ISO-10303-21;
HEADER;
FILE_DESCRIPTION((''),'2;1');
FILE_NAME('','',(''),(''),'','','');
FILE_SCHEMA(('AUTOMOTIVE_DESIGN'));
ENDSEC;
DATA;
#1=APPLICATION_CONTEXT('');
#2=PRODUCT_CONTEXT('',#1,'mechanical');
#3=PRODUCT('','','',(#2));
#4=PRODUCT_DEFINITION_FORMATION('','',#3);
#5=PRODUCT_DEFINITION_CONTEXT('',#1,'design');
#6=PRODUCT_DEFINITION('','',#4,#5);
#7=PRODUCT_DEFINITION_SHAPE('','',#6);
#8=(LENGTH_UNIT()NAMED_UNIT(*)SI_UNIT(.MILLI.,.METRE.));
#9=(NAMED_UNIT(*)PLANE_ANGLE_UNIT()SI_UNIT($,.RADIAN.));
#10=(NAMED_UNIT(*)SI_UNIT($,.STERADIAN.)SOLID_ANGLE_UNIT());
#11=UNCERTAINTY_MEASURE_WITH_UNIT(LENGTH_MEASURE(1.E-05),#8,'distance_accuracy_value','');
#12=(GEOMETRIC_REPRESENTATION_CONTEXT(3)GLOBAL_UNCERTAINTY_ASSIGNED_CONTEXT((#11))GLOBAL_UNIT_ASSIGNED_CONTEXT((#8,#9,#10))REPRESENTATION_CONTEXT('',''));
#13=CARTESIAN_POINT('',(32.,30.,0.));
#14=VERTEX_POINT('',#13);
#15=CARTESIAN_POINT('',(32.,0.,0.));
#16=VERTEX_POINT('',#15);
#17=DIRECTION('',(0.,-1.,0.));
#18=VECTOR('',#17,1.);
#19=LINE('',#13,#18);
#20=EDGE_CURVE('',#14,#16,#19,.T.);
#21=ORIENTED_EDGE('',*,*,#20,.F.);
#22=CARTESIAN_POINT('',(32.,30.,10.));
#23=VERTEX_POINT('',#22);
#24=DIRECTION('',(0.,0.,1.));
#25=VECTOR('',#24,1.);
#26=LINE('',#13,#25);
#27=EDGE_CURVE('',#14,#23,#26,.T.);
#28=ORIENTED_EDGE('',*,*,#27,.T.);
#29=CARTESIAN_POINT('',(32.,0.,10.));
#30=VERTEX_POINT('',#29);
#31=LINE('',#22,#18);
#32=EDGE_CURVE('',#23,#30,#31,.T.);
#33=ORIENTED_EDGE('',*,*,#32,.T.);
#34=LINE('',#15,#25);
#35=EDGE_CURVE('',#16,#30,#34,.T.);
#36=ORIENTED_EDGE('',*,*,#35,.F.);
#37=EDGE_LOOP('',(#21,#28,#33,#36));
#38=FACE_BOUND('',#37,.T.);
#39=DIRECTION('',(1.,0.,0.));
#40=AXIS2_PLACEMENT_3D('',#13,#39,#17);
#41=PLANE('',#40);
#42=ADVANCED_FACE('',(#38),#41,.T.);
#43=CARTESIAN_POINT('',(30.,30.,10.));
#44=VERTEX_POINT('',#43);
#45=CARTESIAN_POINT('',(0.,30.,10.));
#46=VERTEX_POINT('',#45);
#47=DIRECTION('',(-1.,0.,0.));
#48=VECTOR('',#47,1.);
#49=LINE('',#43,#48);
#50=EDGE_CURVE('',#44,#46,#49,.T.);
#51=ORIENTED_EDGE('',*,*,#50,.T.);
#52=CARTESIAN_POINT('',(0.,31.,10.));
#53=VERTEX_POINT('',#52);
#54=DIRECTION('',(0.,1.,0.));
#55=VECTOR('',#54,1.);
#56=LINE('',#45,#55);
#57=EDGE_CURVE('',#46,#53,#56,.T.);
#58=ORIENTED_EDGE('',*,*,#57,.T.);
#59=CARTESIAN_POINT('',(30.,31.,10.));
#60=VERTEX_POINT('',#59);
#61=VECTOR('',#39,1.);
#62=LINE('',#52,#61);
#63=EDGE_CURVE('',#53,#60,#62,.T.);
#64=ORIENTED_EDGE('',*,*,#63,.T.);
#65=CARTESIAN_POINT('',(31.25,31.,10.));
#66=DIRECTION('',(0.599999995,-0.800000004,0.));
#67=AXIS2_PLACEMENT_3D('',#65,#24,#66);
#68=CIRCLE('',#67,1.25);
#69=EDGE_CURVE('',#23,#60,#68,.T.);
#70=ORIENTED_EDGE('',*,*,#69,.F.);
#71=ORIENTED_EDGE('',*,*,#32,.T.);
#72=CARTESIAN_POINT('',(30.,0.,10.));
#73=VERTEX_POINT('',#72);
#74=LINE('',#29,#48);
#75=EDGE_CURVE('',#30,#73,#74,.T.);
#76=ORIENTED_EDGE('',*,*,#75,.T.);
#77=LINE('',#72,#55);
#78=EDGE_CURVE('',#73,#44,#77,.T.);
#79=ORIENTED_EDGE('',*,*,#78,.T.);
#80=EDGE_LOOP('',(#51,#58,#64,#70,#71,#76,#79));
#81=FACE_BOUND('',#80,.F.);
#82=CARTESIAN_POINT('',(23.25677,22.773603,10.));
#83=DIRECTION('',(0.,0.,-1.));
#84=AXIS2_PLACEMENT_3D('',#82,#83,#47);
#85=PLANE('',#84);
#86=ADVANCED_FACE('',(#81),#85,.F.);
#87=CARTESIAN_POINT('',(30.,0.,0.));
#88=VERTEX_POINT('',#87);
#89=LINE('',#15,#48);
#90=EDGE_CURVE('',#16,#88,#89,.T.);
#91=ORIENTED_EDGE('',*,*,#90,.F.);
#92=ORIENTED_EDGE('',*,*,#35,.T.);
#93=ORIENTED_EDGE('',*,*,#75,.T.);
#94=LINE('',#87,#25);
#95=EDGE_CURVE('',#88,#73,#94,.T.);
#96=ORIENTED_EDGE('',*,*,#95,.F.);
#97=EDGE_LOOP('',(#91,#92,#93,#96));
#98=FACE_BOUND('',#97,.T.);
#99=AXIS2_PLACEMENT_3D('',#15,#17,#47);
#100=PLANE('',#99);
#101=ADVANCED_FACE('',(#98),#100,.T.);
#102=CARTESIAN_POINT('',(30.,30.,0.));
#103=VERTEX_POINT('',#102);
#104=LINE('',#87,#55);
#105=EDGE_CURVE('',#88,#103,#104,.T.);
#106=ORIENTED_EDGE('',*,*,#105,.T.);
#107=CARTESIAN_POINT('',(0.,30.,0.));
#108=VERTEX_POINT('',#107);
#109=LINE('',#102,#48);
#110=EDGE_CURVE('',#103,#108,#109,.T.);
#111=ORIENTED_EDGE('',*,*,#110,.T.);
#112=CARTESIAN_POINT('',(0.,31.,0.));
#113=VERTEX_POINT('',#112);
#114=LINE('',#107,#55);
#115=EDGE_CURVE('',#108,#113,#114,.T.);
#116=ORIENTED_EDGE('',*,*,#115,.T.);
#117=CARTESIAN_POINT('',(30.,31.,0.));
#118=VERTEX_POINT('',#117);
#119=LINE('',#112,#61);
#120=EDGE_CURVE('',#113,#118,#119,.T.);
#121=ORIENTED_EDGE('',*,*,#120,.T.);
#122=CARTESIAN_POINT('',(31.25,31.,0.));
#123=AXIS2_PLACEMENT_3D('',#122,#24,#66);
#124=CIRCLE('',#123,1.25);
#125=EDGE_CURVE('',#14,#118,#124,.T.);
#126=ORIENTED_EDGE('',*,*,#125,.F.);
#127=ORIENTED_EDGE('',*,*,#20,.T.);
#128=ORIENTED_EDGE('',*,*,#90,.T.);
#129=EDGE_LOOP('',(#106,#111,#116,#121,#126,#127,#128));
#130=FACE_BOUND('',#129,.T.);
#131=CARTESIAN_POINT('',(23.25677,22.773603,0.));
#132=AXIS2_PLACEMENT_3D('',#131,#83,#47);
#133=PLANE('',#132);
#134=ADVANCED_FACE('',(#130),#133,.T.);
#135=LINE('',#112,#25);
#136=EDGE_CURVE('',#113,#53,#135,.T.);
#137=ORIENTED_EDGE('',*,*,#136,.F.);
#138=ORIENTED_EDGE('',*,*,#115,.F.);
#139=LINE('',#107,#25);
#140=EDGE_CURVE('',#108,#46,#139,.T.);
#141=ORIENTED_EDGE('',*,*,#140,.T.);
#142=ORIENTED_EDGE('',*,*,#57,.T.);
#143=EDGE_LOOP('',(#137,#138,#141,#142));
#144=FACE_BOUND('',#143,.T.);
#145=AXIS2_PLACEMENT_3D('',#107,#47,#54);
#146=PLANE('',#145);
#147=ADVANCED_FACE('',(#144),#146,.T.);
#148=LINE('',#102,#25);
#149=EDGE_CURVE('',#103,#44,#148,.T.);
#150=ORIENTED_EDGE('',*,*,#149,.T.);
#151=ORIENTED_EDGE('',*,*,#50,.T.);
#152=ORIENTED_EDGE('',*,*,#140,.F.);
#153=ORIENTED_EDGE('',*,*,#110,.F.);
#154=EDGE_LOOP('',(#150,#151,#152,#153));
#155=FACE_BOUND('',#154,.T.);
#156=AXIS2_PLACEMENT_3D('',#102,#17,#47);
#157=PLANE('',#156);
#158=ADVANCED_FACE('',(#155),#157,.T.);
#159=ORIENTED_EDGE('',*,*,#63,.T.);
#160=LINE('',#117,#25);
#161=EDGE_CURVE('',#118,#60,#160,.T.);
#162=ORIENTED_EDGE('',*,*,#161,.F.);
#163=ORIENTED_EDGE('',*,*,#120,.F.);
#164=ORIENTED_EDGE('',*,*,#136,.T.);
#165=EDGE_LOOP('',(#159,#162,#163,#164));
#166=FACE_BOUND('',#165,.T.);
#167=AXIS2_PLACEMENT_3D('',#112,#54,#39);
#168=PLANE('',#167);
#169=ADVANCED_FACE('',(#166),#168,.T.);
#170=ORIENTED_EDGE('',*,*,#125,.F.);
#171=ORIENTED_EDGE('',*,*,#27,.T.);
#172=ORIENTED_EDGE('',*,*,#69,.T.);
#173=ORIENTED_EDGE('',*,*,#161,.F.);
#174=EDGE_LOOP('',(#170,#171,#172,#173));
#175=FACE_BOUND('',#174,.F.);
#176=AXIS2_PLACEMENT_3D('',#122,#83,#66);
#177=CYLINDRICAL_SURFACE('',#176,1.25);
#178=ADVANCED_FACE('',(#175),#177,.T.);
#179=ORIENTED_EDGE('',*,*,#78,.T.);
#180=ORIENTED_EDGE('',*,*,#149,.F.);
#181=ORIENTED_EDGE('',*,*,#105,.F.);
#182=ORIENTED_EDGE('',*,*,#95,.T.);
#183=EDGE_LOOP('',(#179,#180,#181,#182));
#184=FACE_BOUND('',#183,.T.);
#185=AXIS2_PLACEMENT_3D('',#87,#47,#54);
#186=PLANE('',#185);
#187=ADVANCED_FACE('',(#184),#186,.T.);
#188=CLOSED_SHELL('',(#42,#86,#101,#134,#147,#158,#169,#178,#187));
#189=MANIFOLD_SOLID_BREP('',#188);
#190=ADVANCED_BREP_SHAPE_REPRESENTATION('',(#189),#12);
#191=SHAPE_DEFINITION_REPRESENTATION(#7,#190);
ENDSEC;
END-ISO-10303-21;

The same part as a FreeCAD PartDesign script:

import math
import FreeCAD as App
import Part
import Sketcher
Q = App.Units.Quantity

doc = App.newDocument("Part")
params = doc.addObject("Spreadsheet::Sheet", "Params")
for row, (alias, value) in enumerate([
    ("sketch1_width", "2 mm"),
    ("sketch1_width2", "30 mm"),
    ("sketch1_height", "1 mm"),
    ("sketch1_radius", "1.25 mm"),
    ("pad1_length", "10 mm"),
], start=1):
    params.set(f"A{row}", alias)
    params.set(f"B{row}", "=" + value)
    params.setAlias(f"B{row}", alias)

body = doc.addObject("PartDesign::Body", "Body")

# Sketch on XY plane
sketch1 = body.newObject("Sketcher::SketchObject", "Sketch")
sketch1.AttachmentSupport = (doc.getObject("XY_Plane"), [""])
sketch1.MapMode = "FlatFace"
sketch1.addGeometry(Part.LineSegment(App.Vector(30, 30, 0), App.Vector(30, 0, 0)), False)
sketch1.addGeometry(Part.LineSegment(App.Vector(30, 0, 0), App.Vector(32, 0, 0)), False)
sketch1.addGeometry(Part.LineSegment(App.Vector(32, 0, 0), App.Vector(32, 30, 0)), False)
sketch1.addGeometry(Part.ArcOfCircle(Part.Circle(App.Vector(31.25, 31, 0), App.Vector(0, 0, 1), 1.25), math.radians(-53.130103), math.radians(180)), False)
sketch1.addGeometry(Part.LineSegment(App.Vector(30, 31, 0), App.Vector(0, 31, 0)), False)
sketch1.addGeometry(Part.LineSegment(App.Vector(0, 31, 0), App.Vector(0, 30, 0)), False)
sketch1.addGeometry(Part.LineSegment(App.Vector(0, 30, 0), App.Vector(30, 30, 0)), False)
sketch1.addConstraint(Sketcher.Constraint("Coincident", 0, 2, 1, 1))
sketch1.addConstraint(Sketcher.Constraint("Coincident", 1, 2, 2, 1))
sketch1.addConstraint(Sketcher.Constraint("Coincident", 2, 2, 3, 1))
sketch1.addConstraint(Sketcher.Constraint("Coincident", 3, 2, 4, 1))
sketch1.addConstraint(Sketcher.Constraint("Coincident", 4, 2, 5, 1))
sketch1.addConstraint(Sketcher.Constraint("Coincident", 5, 2, 6, 1))
sketch1.addConstraint(Sketcher.Constraint("Coincident", 6, 2, 0, 1))
sketch1.addConstraint(Sketcher.Constraint("Vertical", 0))
sketch1.addConstraint(Sketcher.Constraint("Horizontal", 1))
sketch1.addConstraint(Sketcher.Constraint("Vertical", 2))
sketch1.addConstraint(Sketcher.Constraint("Horizontal", 4))
sketch1.addConstraint(Sketcher.Constraint("Vertical", 5))
sketch1.addConstraint(Sketcher.Constraint("Horizontal", 6))
sketch1.addConstraint(Sketcher.Constraint("PointOnObject", 0, 2, -1))
sketch1.addConstraint(Sketcher.Constraint("PointOnObject", 4, 2, -2))
sketch1.addConstraint(Sketcher.Constraint("Horizontal", 2, 2, 5, 2))
sketch1.addConstraint(Sketcher.Constraint("Vertical", 0, 2, 3, 2))
sketch1.addConstraint(Sketcher.Constraint("Equal", 6, 0))
sketch1.addConstraint(Sketcher.Constraint("DistanceX", 1, 1, 1, 2, Q("2 mm")))
sketch1.addConstraint(Sketcher.Constraint("DistanceX", 4, 2, 4, 1, Q("30 mm")))
sketch1.addConstraint(Sketcher.Constraint("DistanceY", 5, 2, 5, 1, Q("1 mm")))
sketch1.addConstraint(Sketcher.Constraint("Radius", 3, Q("1.25 mm")))
sketch1.setExpression("Constraints[18]", "Params.sketch1_width")
sketch1.setExpression("Constraints[19]", "Params.sketch1_width2")
sketch1.setExpression("Constraints[20]", "Params.sketch1_height")
sketch1.setExpression("Constraints[21]", "Params.sketch1_radius")
pad1 = body.newObject("PartDesign::Pad", "Pad")
pad1.Profile = sketch1
pad1.setExpression("Length", "Params.pad1_length")

doc.recompute()
